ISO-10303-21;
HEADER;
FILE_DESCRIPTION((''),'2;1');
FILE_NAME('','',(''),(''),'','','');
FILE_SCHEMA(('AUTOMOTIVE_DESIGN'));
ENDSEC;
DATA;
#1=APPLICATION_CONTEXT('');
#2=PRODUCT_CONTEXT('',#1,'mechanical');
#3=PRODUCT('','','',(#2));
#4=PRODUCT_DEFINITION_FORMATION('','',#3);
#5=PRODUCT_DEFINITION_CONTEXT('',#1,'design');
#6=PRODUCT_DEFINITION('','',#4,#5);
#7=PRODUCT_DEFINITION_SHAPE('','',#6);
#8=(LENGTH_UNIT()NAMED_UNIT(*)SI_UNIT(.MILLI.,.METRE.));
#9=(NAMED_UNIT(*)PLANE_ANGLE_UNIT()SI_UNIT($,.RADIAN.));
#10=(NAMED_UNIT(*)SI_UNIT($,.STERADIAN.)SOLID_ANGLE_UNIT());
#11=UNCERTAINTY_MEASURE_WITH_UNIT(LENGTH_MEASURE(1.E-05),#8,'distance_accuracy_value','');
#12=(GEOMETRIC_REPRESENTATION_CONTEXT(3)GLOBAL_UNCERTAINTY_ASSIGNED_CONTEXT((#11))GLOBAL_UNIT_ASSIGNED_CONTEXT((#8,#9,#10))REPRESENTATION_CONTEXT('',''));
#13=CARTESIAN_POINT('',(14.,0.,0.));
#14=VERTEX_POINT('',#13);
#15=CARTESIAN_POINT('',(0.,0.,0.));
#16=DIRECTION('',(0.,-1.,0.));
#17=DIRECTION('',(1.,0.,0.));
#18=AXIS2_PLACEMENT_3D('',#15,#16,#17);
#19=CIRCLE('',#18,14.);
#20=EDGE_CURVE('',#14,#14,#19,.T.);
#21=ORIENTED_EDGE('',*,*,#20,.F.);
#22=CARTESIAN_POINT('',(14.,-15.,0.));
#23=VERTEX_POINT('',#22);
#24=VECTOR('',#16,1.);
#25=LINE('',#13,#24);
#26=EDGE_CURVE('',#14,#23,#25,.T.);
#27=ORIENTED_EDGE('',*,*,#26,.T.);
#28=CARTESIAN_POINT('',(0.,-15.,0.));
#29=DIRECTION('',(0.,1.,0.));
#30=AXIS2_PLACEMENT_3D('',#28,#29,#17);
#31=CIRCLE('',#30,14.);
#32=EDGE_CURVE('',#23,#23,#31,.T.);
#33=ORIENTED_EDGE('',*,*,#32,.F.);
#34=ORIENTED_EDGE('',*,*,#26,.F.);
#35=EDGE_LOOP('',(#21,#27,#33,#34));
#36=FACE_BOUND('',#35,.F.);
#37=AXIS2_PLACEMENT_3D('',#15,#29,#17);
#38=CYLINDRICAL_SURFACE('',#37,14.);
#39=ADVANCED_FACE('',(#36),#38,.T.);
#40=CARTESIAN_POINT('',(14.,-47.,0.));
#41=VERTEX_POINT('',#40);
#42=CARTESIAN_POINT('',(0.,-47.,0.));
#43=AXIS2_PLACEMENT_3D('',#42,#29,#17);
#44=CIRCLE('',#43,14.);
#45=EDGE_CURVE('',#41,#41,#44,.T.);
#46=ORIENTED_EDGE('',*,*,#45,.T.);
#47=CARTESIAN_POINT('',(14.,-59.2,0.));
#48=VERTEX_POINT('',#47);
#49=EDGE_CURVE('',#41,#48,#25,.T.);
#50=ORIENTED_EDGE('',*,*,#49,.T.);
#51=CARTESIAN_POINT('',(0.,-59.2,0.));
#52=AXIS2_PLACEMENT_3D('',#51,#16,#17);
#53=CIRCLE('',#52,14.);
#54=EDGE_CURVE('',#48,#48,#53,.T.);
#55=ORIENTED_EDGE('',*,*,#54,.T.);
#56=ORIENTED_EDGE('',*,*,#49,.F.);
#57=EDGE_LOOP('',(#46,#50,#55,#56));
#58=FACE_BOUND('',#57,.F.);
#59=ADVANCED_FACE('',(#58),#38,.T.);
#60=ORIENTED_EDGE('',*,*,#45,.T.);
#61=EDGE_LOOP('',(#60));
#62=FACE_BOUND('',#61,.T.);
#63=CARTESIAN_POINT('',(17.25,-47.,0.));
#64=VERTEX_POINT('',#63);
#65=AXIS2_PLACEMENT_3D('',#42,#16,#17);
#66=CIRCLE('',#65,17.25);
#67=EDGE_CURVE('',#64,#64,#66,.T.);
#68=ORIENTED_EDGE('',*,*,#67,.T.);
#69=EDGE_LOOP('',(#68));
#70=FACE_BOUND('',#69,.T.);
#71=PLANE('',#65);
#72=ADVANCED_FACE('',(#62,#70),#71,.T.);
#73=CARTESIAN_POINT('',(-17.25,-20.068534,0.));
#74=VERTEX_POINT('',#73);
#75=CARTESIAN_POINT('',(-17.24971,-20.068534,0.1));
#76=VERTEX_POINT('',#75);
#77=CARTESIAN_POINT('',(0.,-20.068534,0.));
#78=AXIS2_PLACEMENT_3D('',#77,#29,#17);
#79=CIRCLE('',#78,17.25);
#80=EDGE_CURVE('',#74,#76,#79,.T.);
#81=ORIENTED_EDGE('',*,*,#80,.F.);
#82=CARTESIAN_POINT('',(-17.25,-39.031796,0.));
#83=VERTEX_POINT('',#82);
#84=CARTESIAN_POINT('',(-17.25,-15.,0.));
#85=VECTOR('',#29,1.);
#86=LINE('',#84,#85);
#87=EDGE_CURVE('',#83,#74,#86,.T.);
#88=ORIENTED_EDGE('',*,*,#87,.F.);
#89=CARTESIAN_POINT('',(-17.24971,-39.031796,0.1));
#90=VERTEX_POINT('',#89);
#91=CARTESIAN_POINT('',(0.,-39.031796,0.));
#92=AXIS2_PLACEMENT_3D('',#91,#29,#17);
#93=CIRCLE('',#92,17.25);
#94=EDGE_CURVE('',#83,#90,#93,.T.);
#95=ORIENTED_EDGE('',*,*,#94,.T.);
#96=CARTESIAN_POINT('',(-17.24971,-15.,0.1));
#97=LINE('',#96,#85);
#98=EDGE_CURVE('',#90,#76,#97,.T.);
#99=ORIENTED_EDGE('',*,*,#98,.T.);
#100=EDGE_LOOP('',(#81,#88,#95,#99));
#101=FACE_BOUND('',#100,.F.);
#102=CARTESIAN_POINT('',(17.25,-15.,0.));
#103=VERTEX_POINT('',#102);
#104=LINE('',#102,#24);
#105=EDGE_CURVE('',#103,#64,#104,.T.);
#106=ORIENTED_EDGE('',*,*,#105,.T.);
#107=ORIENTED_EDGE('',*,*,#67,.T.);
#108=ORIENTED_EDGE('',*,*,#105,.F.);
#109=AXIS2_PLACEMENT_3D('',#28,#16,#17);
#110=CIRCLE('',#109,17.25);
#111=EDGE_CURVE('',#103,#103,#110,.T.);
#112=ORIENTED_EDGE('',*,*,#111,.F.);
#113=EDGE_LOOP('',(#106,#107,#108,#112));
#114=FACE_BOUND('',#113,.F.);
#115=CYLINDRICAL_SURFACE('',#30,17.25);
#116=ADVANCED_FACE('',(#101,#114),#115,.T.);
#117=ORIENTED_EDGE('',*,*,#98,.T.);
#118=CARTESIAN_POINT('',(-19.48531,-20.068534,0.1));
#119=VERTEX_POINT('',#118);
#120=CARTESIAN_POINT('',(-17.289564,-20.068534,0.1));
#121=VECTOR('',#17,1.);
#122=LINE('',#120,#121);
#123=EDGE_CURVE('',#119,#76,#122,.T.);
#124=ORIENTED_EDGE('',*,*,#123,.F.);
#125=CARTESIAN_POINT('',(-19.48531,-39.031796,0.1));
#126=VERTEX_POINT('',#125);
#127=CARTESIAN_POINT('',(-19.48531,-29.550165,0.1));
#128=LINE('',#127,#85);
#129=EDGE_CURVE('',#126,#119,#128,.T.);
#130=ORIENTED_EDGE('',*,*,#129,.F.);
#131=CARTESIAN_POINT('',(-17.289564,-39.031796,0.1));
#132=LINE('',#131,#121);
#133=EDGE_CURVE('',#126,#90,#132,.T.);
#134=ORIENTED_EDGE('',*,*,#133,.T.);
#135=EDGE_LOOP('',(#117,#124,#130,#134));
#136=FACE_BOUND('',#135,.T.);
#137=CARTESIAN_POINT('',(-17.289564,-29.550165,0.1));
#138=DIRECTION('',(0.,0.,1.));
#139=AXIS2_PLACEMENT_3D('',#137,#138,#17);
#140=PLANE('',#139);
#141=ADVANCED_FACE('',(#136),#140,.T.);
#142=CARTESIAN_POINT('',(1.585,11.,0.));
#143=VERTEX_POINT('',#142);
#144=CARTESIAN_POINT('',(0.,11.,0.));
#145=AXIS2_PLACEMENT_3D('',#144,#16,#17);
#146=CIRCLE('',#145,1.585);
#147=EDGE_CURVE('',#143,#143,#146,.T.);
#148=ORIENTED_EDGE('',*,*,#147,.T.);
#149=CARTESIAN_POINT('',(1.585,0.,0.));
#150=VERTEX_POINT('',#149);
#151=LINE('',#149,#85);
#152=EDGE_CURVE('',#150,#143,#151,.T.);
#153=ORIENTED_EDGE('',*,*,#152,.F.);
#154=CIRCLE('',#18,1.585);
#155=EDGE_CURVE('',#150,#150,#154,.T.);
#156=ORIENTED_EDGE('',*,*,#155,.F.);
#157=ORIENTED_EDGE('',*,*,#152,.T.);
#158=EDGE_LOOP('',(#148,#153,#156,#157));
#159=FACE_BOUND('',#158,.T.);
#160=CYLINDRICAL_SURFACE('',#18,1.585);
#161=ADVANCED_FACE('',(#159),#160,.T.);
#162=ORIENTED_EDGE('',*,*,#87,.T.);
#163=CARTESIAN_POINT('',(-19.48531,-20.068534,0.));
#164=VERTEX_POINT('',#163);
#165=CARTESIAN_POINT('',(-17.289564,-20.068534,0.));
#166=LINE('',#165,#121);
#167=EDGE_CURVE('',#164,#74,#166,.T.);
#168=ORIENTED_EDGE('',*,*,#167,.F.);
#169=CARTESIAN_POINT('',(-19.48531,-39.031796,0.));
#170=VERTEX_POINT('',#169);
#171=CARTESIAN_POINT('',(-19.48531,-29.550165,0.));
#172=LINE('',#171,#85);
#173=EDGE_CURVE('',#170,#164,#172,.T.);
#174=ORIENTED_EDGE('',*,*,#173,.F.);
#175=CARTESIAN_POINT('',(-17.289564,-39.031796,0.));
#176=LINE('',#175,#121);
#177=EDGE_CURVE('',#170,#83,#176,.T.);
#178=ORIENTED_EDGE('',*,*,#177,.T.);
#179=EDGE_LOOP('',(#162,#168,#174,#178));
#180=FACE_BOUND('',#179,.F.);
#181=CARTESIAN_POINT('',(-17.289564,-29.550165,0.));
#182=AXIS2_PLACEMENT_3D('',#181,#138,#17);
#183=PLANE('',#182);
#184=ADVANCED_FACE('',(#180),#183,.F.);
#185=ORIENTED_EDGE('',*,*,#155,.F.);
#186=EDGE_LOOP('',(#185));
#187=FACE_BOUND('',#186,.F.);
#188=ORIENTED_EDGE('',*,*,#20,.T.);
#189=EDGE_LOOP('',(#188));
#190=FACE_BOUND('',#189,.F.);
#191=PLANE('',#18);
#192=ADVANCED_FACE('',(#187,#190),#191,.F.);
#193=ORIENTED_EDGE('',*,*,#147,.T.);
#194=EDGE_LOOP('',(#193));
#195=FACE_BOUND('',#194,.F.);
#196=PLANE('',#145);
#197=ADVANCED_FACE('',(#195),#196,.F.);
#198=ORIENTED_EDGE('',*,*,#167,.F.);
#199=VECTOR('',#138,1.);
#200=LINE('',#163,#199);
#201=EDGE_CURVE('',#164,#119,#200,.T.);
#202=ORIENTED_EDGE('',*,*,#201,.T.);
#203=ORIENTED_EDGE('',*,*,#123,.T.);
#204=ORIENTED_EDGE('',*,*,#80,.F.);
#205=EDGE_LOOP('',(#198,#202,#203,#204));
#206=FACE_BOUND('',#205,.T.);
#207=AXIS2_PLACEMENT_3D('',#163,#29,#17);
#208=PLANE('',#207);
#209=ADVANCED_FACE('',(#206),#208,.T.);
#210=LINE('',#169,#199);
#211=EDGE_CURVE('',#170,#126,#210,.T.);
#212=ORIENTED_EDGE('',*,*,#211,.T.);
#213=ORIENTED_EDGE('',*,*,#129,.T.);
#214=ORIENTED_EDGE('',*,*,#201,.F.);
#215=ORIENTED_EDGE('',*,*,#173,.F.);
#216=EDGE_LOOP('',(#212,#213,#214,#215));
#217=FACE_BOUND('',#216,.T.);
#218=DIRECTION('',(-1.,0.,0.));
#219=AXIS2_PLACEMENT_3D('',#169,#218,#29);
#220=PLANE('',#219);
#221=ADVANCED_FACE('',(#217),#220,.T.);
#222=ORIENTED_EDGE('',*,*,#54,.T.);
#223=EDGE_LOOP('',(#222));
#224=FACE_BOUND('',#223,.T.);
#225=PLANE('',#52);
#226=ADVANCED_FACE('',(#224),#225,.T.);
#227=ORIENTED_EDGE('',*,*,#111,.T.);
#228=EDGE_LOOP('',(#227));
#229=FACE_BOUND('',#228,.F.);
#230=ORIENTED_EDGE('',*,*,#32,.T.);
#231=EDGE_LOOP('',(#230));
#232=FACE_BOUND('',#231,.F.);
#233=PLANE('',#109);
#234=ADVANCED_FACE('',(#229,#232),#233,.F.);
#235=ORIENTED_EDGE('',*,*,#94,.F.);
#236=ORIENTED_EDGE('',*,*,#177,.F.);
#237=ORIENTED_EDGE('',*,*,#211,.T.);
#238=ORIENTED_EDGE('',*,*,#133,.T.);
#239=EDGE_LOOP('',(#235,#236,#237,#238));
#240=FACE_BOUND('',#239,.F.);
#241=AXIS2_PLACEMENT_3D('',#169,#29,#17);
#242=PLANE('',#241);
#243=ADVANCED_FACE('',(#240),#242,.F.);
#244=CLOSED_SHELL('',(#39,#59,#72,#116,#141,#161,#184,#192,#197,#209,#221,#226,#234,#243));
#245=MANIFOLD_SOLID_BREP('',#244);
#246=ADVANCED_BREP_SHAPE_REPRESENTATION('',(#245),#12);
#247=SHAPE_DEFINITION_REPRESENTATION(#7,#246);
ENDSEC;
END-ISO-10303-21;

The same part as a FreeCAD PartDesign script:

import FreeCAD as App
import Part
import Sketcher
from FreeCAD import Vector
Q = App.Units.Quantity

doc = App.newDocument("Part")
body = doc.addObject("PartDesign::Body", "Body")

sketch1 = doc.addObject("Sketcher::SketchObject", "Sketch")
body.addObject(sketch1)
sketch1.AttachmentSupport = (doc.XZ_Plane, [""])
sketch1.MapMode = "FlatFace"
sketch1.addGeometry(Part.Circle(Vector(0, 0, 0), Vector(0, 0, 1), 14), False)
sketch1.addConstraint(Sketcher.Constraint("Coincident", 0, 3, -1, 1))
sketch1.addConstraint(Sketcher.Constraint("Diameter", 0, Q("28 mm")))
pad1 = doc.addObject("PartDesign::Pad", "Pad")
body.addObject(pad1)
pad1.Profile = sketch1
pad1.Length = 59.2

sketch2 = doc.addObject("Sketcher::SketchObject", "Sketch001")
body.addObject(sketch2)
sketch2.AttachmentSupport = (doc.XZ_Plane, [""])
sketch2.MapMode = "FlatFace"
sketch2.AttachmentOffset = App.Placement(Vector(0, 0, 15), App.Rotation())
sketch2.addGeometry(Part.Circle(Vector(0, 0, 0), Vector(0, 0, 1), 17), False)
sketch2.addConstraint(Sketcher.Constraint("Coincident", 0, 3, -1, 1))
sketch2.addConstraint(Sketcher.Constraint("Diameter", 0, Q("34.5 mm")))
pad2 = doc.addObject("PartDesign::Pad", "Pad001")
body.addObject(pad2)
pad2.Profile = sketch2
pad2.Length = 32

sketch3 = doc.addObject("Sketcher::SketchObject", "Sketch002")
body.addObject(sketch3)
sketch3.AttachmentSupport = (doc.XZ_Plane, [""])
sketch3.MapMode = "FlatFace"
sketch3.addGeometry(Part.Circle(Vector(0, 0, 0), Vector(0, 0, 1), 1.6), False)
sketch3.addConstraint(Sketcher.Constraint("Coincident", 0, 3, -1, 1))
sketch3.addConstraint(Sketcher.Constraint("Diameter", 0, Q("3.17 mm")))
pad3 = doc.addObject("PartDesign::Pad", "Pad002")
body.addObject(pad3)
pad3.Profile = sketch3
pad3.Length = 11
pad3.Reversed = True

sketch4 = doc.addObject("Sketcher::SketchObject", "Sketch003")
body.addObject(sketch4)
sketch4.AttachmentSupport = (doc.XY_Plane, [""])
sketch4.MapMode = "FlatFace"
sketch4.addGeometry(Part.LineSegment(Vector(-19.5, -20.1, 0), Vector(-19.5, -39, 0)), False)
sketch4.addGeometry(Part.LineSegment(Vector(-19.5, -39, 0), Vector(-15.1, -39, 0)), False)
sketch4.addGeometry(Part.LineSegment(Vector(-15.1, -39, 0), Vector(-15.1, -20.1, 0)), False)
sketch4.addGeometry(Part.LineSegment(Vector(-15.1, -20.1, 0), Vector(-19.5, -20.1, 0)), False)
sketch4.addConstraint(Sketcher.Constraint("Coincident", 0, 2, 1, 1))
sketch4.addConstraint(Sketcher.Constraint("Coincident", 1, 2, 2, 1))
sketch4.addConstraint(Sketcher.Constraint("Coincident", 2, 2, 3, 1))
sketch4.addConstraint(Sketcher.Constraint("Coincident", 3, 2, 0, 1))
sketch4.addConstraint(Sketcher.Constraint("Vertical", 0))
sketch4.addConstraint(Sketcher.Constraint("Horizontal", 1))
sketch4.addConstraint(Sketcher.Constraint("Vertical", 2))
sketch4.addConstraint(Sketcher.Constraint("Horizontal", 3))
sketch4.addConstraint(Sketcher.Constraint("DistanceX", 1, 1, 1, 2, Q("4.391492 mm")))
sketch4.addConstraint(Sketcher.Constraint("DistanceY", 0, 2, 0, 1, Q("18.963262 mm")))
sketch4.addConstraint(Sketcher.Constraint("DistanceX", 0, 2, -1, 1, Q("19.48531 mm")))
sketch4.addConstraint(Sketcher.Constraint("DistanceY", 0, 2, -1, 1, Q("39.031796 mm")))
pad4 = doc.addObject("PartDesign::Pad", "Pad003")
body.addObject(pad4)
pad4.Profile = sketch4
pad4.Length = 0.1

doc.recompute()
